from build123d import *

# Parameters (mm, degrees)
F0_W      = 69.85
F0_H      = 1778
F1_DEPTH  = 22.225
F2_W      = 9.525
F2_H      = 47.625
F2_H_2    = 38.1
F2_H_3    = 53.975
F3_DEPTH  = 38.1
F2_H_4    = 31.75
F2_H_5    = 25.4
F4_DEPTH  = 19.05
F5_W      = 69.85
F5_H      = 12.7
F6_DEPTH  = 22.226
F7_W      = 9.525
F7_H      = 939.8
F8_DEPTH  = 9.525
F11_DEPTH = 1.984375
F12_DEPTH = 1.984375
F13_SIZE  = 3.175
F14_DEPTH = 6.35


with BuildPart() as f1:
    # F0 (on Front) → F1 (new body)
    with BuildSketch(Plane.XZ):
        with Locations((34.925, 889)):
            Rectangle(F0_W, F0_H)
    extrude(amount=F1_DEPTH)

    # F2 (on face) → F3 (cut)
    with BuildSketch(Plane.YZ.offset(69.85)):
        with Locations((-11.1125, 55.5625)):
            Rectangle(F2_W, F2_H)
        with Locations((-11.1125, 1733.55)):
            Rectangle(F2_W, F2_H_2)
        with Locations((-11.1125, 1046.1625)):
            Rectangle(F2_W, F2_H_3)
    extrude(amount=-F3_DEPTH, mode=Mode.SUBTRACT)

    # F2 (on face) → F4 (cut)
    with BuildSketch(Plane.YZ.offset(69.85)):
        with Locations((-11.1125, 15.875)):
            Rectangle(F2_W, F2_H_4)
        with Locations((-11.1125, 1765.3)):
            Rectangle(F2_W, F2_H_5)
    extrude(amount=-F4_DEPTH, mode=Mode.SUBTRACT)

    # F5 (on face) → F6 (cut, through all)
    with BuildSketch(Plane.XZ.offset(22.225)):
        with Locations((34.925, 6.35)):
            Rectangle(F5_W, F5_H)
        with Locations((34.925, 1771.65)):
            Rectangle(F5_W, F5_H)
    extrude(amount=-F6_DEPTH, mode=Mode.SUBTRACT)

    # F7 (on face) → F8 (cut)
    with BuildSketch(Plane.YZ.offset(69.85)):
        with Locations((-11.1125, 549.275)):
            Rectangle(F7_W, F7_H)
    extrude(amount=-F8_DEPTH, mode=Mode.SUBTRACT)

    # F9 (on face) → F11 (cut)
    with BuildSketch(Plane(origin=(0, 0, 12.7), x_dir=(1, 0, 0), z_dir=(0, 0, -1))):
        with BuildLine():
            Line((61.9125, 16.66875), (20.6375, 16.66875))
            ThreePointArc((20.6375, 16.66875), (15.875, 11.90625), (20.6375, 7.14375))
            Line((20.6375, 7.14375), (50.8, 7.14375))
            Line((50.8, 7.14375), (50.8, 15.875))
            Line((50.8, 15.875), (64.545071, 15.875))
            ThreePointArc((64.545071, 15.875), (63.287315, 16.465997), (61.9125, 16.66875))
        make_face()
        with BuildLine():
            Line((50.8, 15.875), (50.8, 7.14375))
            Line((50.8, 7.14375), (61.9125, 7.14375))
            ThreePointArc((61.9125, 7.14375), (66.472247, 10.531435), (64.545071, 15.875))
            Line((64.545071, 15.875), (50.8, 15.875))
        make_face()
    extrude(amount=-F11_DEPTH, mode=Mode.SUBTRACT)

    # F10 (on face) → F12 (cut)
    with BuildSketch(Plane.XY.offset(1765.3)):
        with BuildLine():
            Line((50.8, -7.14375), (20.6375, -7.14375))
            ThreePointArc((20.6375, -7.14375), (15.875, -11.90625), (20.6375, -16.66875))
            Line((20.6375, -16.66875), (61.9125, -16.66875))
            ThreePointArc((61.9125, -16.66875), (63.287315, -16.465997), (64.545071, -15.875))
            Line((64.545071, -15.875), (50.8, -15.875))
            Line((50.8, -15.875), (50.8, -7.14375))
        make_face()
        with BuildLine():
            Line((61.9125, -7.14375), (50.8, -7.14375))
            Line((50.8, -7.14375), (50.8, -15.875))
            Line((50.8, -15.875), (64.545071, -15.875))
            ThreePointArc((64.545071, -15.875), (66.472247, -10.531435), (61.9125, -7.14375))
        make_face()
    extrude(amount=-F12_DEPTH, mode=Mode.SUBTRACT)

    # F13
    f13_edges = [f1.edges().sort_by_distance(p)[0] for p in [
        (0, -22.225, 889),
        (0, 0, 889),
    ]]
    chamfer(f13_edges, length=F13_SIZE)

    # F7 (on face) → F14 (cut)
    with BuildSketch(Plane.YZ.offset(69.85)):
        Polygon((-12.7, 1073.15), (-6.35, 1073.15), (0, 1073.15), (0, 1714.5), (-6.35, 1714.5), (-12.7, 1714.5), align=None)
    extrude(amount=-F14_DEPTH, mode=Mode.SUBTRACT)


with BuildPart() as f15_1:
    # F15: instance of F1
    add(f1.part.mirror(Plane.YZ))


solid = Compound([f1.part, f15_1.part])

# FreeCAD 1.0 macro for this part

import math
import FreeCAD as App
import Part
import Sketcher
from FreeCAD import Vector
Q = App.Units.Quantity


def edges_at(feature, points):
    """Names of the edges that pass closest to the given points."""
    edges = feature.Shape.Edges
    near = lambda p: min(range(len(edges)), key=lambda i: edges[i].distToShape(Part.Vertex(*p))[0])
    return sorted({f"Edge{near(p) + 1}" for p in points})

doc = App.newDocument("Part")
body = doc.addObject("PartDesign::Body", "Body")

sketch1 = body.newObject("Sketcher::SketchObject", "Sketch")
sketch1.AttachmentSupport = (doc.getObject("XZ_Plane"), [""])
sketch1.MapMode = "FlatFace"
sketch1.addGeometry([
    Part.LineSegment(Vector(0, 1778, 0), Vector(0, 0, 0)),
    Part.LineSegment(Vector(0, 0, 0), Vector(70, 0, 0)),
    Part.LineSegment(Vector(70, 0, 0), Vector(70, 1778, 0)),
    Part.LineSegment(Vector(70, 1778, 0), Vector(0, 1778, 0)),
], False)
sketch1.addConstraint([
    Sketcher.Constraint("Coincident", 0, 2, 1, 1),
    Sketcher.Constraint("Coincident", 1, 2, 2, 1),
    Sketcher.Constraint("Coincident", 2, 2, 3, 1),
    Sketcher.Constraint("Coincident", 3, 2, 0, 1),
    Sketcher.Constraint("Vertical", 0),
    Sketcher.Constraint("Horizontal", 1),
    Sketcher.Constraint("Vertical", 2),
    Sketcher.Constraint("Horizontal", 3),
    Sketcher.Constraint("Coincident", 0, 2, -1, 1),
    Sketcher.Constraint("DistanceY", 0, 2, 0, 1, Q("70 in")),
    Sketcher.Constraint("DistanceX", 1, 1, 1, 2, Q("2.75 in")),
])
pad1 = body.newObject("PartDesign::Pad", "Pad")
pad1.Profile = sketch1
pad1.Length = Q("0.875 in")

sketch2 = body.newObject("Sketcher::SketchObject", "Sketch001")
sketch2.AttachmentSupport = (doc.getObject("YZ_Plane"), [""])
sketch2.MapMode = "FlatFace"
sketch2.AttachmentOffset = App.Placement(Vector(0, 0, 2.75 * 25.4), App.Rotation())
sketch2.addGeometry([
    Part.LineSegment(Vector(-16, 79, 0), Vector(-16, 32, 0)),
    Part.LineSegment(Vector(-16, 32, 0), Vector(-6, 32, 0)),
    Part.LineSegment(Vector(-6, 32, 0), Vector(-6, 79, 0)),
    Part.LineSegment(Vector(-6, 79, 0), Vector(-16, 79, 0)),
    Part.LineSegment(Vector(-16, 1753, 0), Vector(-16, 1714, 0)),
    Part.LineSegment(Vector(-16, 1714, 0), Vector(-6, 1714, 0)),
    Part.LineSegment(Vector(-6, 1714, 0), Vector(-6, 1753, 0)),
    Part.LineSegment(Vector(-6, 1753, 0), Vector(-16, 1753, 0)),
    Part.LineSegment(Vector(-16, 1073, 0), Vector(-16, 1019, 0)),
    Part.LineSegment(Vector(-16, 1019, 0), Vector(-6, 1019, 0)),
    Part.LineSegment(Vector(-6, 1019, 0), Vector(-6, 1073, 0)),
    Part.LineSegment(Vector(-6, 1073, 0), Vector(-16, 1073, 0)),
], False)
sketch2.addConstraint([
    Sketcher.Constraint("Coincident", 0, 2, 1, 1),
    Sketcher.Constraint("Coincident", 1, 2, 2, 1),
    Sketcher.Constraint("Coincident", 2, 2, 3, 1),
    Sketcher.Constraint("Coincident", 3, 2, 0, 1),
    Sketcher.Constraint("Coincident", 4, 2, 5, 1),
    Sketcher.Constraint("Coincident", 5, 2, 6, 1),
    Sketcher.Constraint("Coincident", 6, 2, 7, 1),
    Sketcher.Constraint("Coincident", 7, 2, 4, 1),
    Sketcher.Constraint("Coincident", 8, 2, 9, 1),
    Sketcher.Constraint("Coincident", 9, 2, 10, 1),
    Sketcher.Constraint("Coincident", 10, 2, 11, 1),
    Sketcher.Constraint("Coincident", 11, 2, 8, 1),
    Sketcher.Constraint("Vertical", 0),
    Sketcher.Constraint("Horizontal", 1),
    Sketcher.Constraint("Vertical", 2),
    Sketcher.Constraint("Horizontal", 3),
    Sketcher.Constraint("Vertical", 4),
    Sketcher.Constraint("Horizontal", 5),
    Sketcher.Constraint("Vertical", 6),
    Sketcher.Constraint("Horizontal", 7),
    Sketcher.Constraint("Vertical", 8),
    Sketcher.Constraint("Horizontal", 9),
    Sketcher.Constraint("Vertical", 10),
    Sketcher.Constraint("Horizontal", 11),
    Sketcher.Constraint("Vertical", 3, 2, 4, 2),
    Sketcher.Constraint("Vertical", 2, 2, 5, 2),
    Sketcher.Constraint("Vertical", 7, 2, 8, 2),
    Sketcher.Constraint("Vertical", 6, 2, 9, 2),
    Sketcher.Constraint("DistanceY", 4, 2, 4, 1, Q("1.5 in")),
    Sketcher.Constraint("DistanceY", -1, 1, 6, 2, Q("69 in")),
    Sketcher.Constraint("DistanceY", 3, 2, 8, 2, Q("37 in")),
    Sketcher.Constraint("DistanceX", 1, 1, 1, 2, Q("0.375 in")),
    Sketcher.Constraint("DistanceY", 0, 2, 0, 1, Q("1.875 in")),
    Sketcher.Constraint("DistanceY", 8, 2, 8, 1, Q("2.125 in")),
    Sketcher.Constraint("DistanceY", -1, 1, 0, 2, Q("1.25 in")),
    Sketcher.Constraint("DistanceX", 1, 2, -1, 1, Q("0.25 in")),
])
pocket1 = body.newObject("PartDesign::Pocket", "Pocket")
pocket1.Profile = sketch2
pocket1.Length = Q("1.5 in")

sketch3 = body.newObject("Sketcher::SketchObject", "Sketch002")
sketch3.AttachmentSupport = (doc.getObject("YZ_Plane"), [""])
sketch3.MapMode = "FlatFace"
sketch3.AttachmentOffset = App.Placement(Vector(0, 0, 2.75 * 25.4), App.Rotation())
sketch3.addGeometry([
    Part.LineSegment(Vector(-16, 32, 0), Vector(-16, 0, 0)),
    Part.LineSegment(Vector(-16, 0, 0), Vector(-6, 0, 0)),
    Part.LineSegment(Vector(-6, 0, 0), Vector(-6, 32, 0)),
    Part.LineSegment(Vector(-6, 32, 0), Vector(-16, 32, 0)),
    Part.LineSegment(Vector(-16, 1778, 0), Vector(-16, 1753, 0)),
    Part.LineSegment(Vector(-16, 1753, 0), Vector(-6, 1753, 0)),
    Part.LineSegment(Vector(-6, 1753, 0), Vector(-6, 1778, 0)),
    Part.LineSegment(Vector(-6, 1778, 0), Vector(-16, 1778, 0)),
], False)
sketch3.addConstraint([
    Sketcher.Constraint("Coincident", 0, 2, 1, 1),
    Sketcher.Constraint("Coincident", 1, 2, 2, 1),
    Sketcher.Constraint("Coincident", 2, 2, 3, 1),
    Sketcher.Constraint("Coincident", 3, 2, 0, 1),
    Sketcher.Constraint("Coincident", 4, 2, 5, 1),
    Sketcher.Constraint("Coincident", 5, 2, 6, 1),
    Sketcher.Constraint("Coincident", 6, 2, 7, 1),
    Sketcher.Constraint("Coincident", 7, 2, 4, 1),
    Sketcher.Constraint("Vertical", 0),
    Sketcher.Constraint("Horizontal", 1),
    Sketcher.Constraint("Vertical", 2),
    Sketcher.Constraint("Horizontal", 3),
    Sketcher.Constraint("Vertical", 4),
    Sketcher.Constraint("Horizontal", 5),
    Sketcher.Constraint("Vertical", 6),
    Sketcher.Constraint("Horizontal", 7),
    Sketcher.Constraint("PointOnObject", 0, 2, -1),
    Sketcher.Constraint("Vertical", 3, 2, 4, 2),
    Sketcher.Constraint("Vertical", 2, 2, 5, 2),
    Sketcher.Constraint("DistanceY", 4, 2, 4, 1, Q("1 in")),
    Sketcher.Constraint("DistanceY", -1, 1, 4, 2, Q("69 in")),
    Sketcher.Constraint("DistanceY", 0, 2, 0, 1, Q("1.25 in")),
    Sketcher.Constraint("DistanceX", 1, 1, 1, 2, Q("0.375 in")),
    Sketcher.Constraint("DistanceX", 1, 2, -1, 1, Q("0.25 in")),
])
pocket2 = body.newObject("PartDesign::Pocket", "Pocket001")
pocket2.Profile = sketch3
pocket2.Length = Q("0.75 in")

sketch4 = body.newObject("Sketcher::SketchObject", "Sketch003")
sketch4.AttachmentSupport = (doc.getObject("XZ_Plane"), [""])
sketch4.MapMode = "FlatFace"
sketch4.AttachmentOffset = App.Placement(Vector(0, 0, 0.875 * 25.4), App.Rotation())
sketch4.addGeometry([
    Part.LineSegment(Vector(0, 13, 0), Vector(0, 0, 0)),
    Part.LineSegment(Vector(0, 0, 0), Vector(70, 0, 0)),
    Part.LineSegment(Vector(70, 0, 0), Vector(70, 13, 0)),
    Part.LineSegment(Vector(70, 13, 0), Vector(0, 13, 0)),
    Part.LineSegment(Vector(0, 1778, 0), Vector(0, 1765, 0)),
    Part.LineSegment(Vector(0, 1765, 0), Vector(70, 1765, 0)),
    Part.LineSegment(Vector(70, 1765, 0), Vector(70, 1778, 0)),
    Part.LineSegment(Vector(70, 1778, 0), Vector(0, 1778, 0)),
], False)
sketch4.addConstraint([
    Sketcher.Constraint("Coincident", 0, 2, 1, 1),
    Sketcher.Constraint("Coincident", 1, 2, 2, 1),
    Sketcher.Constraint("Coincident", 2, 2, 3, 1),
    Sketcher.Constraint("Coincident", 3, 2, 0, 1),
    Sketcher.Constraint("Coincident", 4, 2, 5, 1),
    Sketcher.Constraint("Coincident", 5, 2, 6, 1),
    Sketcher.Constraint("Coincident", 6, 2, 7, 1),
    Sketcher.Constraint("Coincident", 7, 2, 4, 1),
    Sketcher.Constraint("Vertical", 0),
    Sketcher.Constraint("Horizontal", 1),
    Sketcher.Constraint("Vertical", 2),
    Sketcher.Constraint("Horizontal", 3),
    Sketcher.Constraint("Vertical", 4),
    Sketcher.Constraint("Horizontal", 5),
    Sketcher.Constraint("Vertical", 6),
    Sketcher.Constraint("Horizontal", 7),
    Sketcher.Constraint("Coincident", 0, 2, -1, 1),
    Sketcher.Constraint("PointOnObject", 4, 2, -2),
    Sketcher.Constraint("Vertical", 2, 2, 5, 2),
    Sketcher.Constraint("Equal", 2, 4),
    Sketcher.Constraint("DistanceY", 0, 2, 0, 1, Q("0.5 in")),
    Sketcher.Constraint("DistanceY", -1, 1, 6, 2, Q("70 in")),
    Sketcher.Constraint("DistanceX", 1, 1, 1, 2, Q("2.75 in")),
])
pocket3 = body.newObject("PartDesign::Pocket", "Pocket002")
pocket3.Profile = sketch4
pocket3.Type = "ThroughAll"

sketch5 = body.newObject("Sketcher::SketchObject", "Sketch004")
sketch5.AttachmentSupport = (doc.getObject("YZ_Plane"), [""])
sketch5.MapMode = "FlatFace"
sketch5.AttachmentOffset = App.Placement(Vector(0, 0, 2.75 * 25.4), App.Rotation())
sketch5.addGeometry([
    Part.LineSegment(Vector(-16, 1019, 0), Vector(-16, 79, 0)),
    Part.LineSegment(Vector(-16, 79, 0), Vector(-6, 79, 0)),
    Part.LineSegment(Vector(-6, 79, 0), Vector(-6, 1019, 0)),
    Part.LineSegment(Vector(-6, 1019, 0), Vector(-16, 1019, 0)),
], False)
sketch5.addConstraint([
    Sketcher.Constraint("Coincident", 0, 2, 1, 1),
    Sketcher.Constraint("Coincident", 1, 2, 2, 1),
    Sketcher.Constraint("Coincident", 2, 2, 3, 1),
    Sketcher.Constraint("Coincident", 3, 2, 0, 1),
    Sketcher.Constraint("Vertical", 0),
    Sketcher.Constraint("Horizontal", 1),
    Sketcher.Constraint("Vertical", 2),
    Sketcher.Constraint("Horizontal", 3),
    Sketcher.Constraint("DistanceY", 0, 2, 0, 1, Q("37 in")),
    Sketcher.Constraint("DistanceX", 1, 1, 1, 2, Q("0.375 in")),
    Sketcher.Constraint("DistanceX", 1, 2, -1, 1, Q("0.25 in")),
    Sketcher.Constraint("DistanceY", -1, 1, 0, 2, Q("3.125 in")),
])
pocket4 = body.newObject("PartDesign::Pocket", "Pocket003")
pocket4.Profile = sketch5
pocket4.Length = Q("0.375 in")

sketch6 = body.newObject("Sketcher::SketchObject", "Sketch005")
sketch6.AttachmentSupport = (doc.getObject("XY_Plane"), [""])
sketch6.MapMode = "FlatFace"
sketch6.AttachmentOffset = App.Placement(Vector(0, 0, 0.5 * 25.4), App.Rotation())
sketch6.addGeometry([
    Part.LineSegment(Vector(61.9, -16.7, 0), Vector(20.6, -16.7, 0)),
    Part.ArcOfCircle(Part.Circle(Vector(20.6, -11.9, 0), Vector(0, 0, 1), 4.8), math.radians(90), math.radians(270)),
    Part.LineSegment(Vector(20.6, -7.1, 0), Vector(61.9, -7.1, 0)),
    Part.ArcOfCircle(Part.Circle(Vector(61.9, -11.9, 0), Vector(0, 0, 1), 4.8), math.radians(-56), math.radians(90)),
    Part.ArcOfCircle(Part.Circle(Vector(61.9, -11.9, 0), Vector(0, 0, 1), 4.8), math.radians(-90), math.radians(-56)),
], False)
sketch6.addConstraint([
    Sketcher.Constraint("Tangent", 0, 2, 1, 2),
    Sketcher.Constraint("Tangent", 1, 1, 2, 1),
    Sketcher.Constraint("Tangent", 2, 2, 3, 2),
    Sketcher.Constraint("Tangent", 3, 1, 4, 2),
    Sketcher.Constraint("Tangent", 4, 1, 0, 1),
    Sketcher.Constraint("Horizontal", 0),
    Sketcher.Constraint("Horizontal", 2),
    Sketcher.Constraint("Equal", 1, 3),
    Sketcher.Constraint("Radius", 1, Q("0.1875 in")),
    Sketcher.Constraint("DistanceX", 0, 2, 0, 1, Q("1.625 in")),
    Sketcher.Constraint("DistanceX", -1, 1, 1, 3, Q("0.8125 in")),
    Sketcher.Constraint("DistanceY", 1, 3, -1, 1, Q("0.46875 in")),
    Sketcher.Constraint("DistanceY", 3, 1, -1, 1, Q("0.625 in")),
])
pocket5 = body.newObject("PartDesign::Pocket", "Pocket004")
pocket5.Profile = sketch6
pocket5.Length = Q("0.078125 in")
pocket5.Reversed = True

sketch7 = body.newObject("Sketcher::SketchObject", "Sketch006")
sketch7.AttachmentSupport = (doc.getObject("XY_Plane"), [""])
sketch7.MapMode = "FlatFace"
sketch7.AttachmentOffset = App.Placement(Vector(0, 0, 69.5 * 25.4), App.Rotation())
sketch7.addGeometry([
    Part.ArcOfCircle(Part.Circle(Vector(20.6, -11.9, 0), Vector(0, 0, 1), 4.8), math.radians(90), math.radians(270)),
    Part.LineSegment(Vector(20.6, -16.7, 0), Vector(61.9, -16.7, 0)),
    Part.ArcOfCircle(Part.Circle(Vector(61.9, -11.9, 0), Vector(0, 0, 1), 4.8), math.radians(-90), math.radians(-56)),
    Part.ArcOfCircle(Part.Circle(Vector(61.9, -11.9, 0), Vector(0, 0, 1), 4.8), math.radians(-56), math.radians(90)),
    Part.LineSegment(Vector(61.9, -7.1, 0), Vector(20.6, -7.1, 0)),
], False)
sketch7.addConstraint([
    Sketcher.Constraint("Tangent", 0, 2, 1, 1),
    Sketcher.Constraint("Tangent", 1, 2, 2, 1),
    Sketcher.Constraint("Tangent", 2, 2, 3, 1),
    Sketcher.Constraint("Tangent", 3, 2, 4, 1),
    Sketcher.Constraint("Tangent", 4, 2, 0, 1),
    Sketcher.Constraint("Horizontal", 1),
    Sketcher.Constraint("Horizontal", 4),
    Sketcher.Constraint("Equal", 0, 3),
    Sketcher.Constraint("Radius", 0, Q("0.1875 in")),
    Sketcher.Constraint("DistanceX", 1, 1, 1, 2, Q("1.625 in")),
    Sketcher.Constraint("DistanceX", -1, 1, 0, 3, Q("0.8125 in")),
    Sketcher.Constraint("DistanceY", 0, 3, -1, 1, Q("0.46875 in")),
    Sketcher.Constraint("DistanceY", 2, 2, -1, 1, Q("0.625 in")),
])
pocket6 = body.newObject("PartDesign::Pocket", "Pocket005")
pocket6.Profile = sketch7
pocket6.Length = Q("0.078125 in")
doc.recompute()

chamfer = body.newObject("PartDesign::Chamfer", "Chamfer")
chamfer.Base = (pocket6, edges_at(pocket6, [(0, -22.225, 889), (0, 0, 889)]))
chamfer.Size = Q("0.125 in")

sketch8 = body.newObject("Sketcher::SketchObject", "Sketch007")
sketch8.AttachmentSupport = (doc.getObject("YZ_Plane"), [""])
sketch8.MapMode = "FlatFace"
sketch8.AttachmentOffset = App.Placement(Vector(0, 0, 2.75 * 25.4), App.Rotation())
sketch8.addGeometry([
    Part.LineSegment(Vector(-13, 1073, 0), Vector(0, 1073, 0)),
    Part.LineSegment(Vector(0, 1073, 0), Vector(0, 1714, 0)),
    Part.LineSegment(Vector(0, 1714, 0), Vector(-13, 1714, 0)),
    Part.LineSegment(Vector(-13, 1714, 0), Vector(-13, 1073, 0)),
], False)
sketch8.addConstraint([
    Sketcher.Constraint("Coincident", 0, 2, 1, 1),
    Sketcher.Constraint("Coincident", 1, 2, 2, 1),
    Sketcher.Constraint("Coincident", 2, 2, 3, 1),
    Sketcher.Constraint("Coincident", 3, 2, 0, 1),
    Sketcher.Constraint("Horizontal", 0),
    Sketcher.Constraint("Vertical", 1),
    Sketcher.Constraint("Horizontal", 2),
    Sketcher.Constraint("Vertical", 3),
    Sketcher.Constraint("PointOnObject", 0, 2, -2),
    Sketcher.Constraint("DistanceX", 0, 1, 0, 2, Q("0.5 in")),
    Sketcher.Constraint("DistanceY", 1, 1, 1, 2, Q("25.25 in")),
    Sketcher.Constraint("DistanceY", -1, 1, 1, 2, Q("67.5 in")),
])
pocket7 = body.newObject("PartDesign::Pocket", "Pocket006")
pocket7.Profile = sketch8
pocket7.Length = Q("0.25 in")
body2 = doc.addObject("PartDesign::Body", "Body001")
doc.recompute()

mirroring = doc.addObject("Part::Mirroring", "Mirroring")
mirroring.Source = body
mirroring.Base = Vector(0, 0, 0)
mirroring.Normal = Vector(1, 0, 0)
body2.BaseFeature = mirroring
doc.recompute()
mirroring.Visibility = False

doc.recompute()
